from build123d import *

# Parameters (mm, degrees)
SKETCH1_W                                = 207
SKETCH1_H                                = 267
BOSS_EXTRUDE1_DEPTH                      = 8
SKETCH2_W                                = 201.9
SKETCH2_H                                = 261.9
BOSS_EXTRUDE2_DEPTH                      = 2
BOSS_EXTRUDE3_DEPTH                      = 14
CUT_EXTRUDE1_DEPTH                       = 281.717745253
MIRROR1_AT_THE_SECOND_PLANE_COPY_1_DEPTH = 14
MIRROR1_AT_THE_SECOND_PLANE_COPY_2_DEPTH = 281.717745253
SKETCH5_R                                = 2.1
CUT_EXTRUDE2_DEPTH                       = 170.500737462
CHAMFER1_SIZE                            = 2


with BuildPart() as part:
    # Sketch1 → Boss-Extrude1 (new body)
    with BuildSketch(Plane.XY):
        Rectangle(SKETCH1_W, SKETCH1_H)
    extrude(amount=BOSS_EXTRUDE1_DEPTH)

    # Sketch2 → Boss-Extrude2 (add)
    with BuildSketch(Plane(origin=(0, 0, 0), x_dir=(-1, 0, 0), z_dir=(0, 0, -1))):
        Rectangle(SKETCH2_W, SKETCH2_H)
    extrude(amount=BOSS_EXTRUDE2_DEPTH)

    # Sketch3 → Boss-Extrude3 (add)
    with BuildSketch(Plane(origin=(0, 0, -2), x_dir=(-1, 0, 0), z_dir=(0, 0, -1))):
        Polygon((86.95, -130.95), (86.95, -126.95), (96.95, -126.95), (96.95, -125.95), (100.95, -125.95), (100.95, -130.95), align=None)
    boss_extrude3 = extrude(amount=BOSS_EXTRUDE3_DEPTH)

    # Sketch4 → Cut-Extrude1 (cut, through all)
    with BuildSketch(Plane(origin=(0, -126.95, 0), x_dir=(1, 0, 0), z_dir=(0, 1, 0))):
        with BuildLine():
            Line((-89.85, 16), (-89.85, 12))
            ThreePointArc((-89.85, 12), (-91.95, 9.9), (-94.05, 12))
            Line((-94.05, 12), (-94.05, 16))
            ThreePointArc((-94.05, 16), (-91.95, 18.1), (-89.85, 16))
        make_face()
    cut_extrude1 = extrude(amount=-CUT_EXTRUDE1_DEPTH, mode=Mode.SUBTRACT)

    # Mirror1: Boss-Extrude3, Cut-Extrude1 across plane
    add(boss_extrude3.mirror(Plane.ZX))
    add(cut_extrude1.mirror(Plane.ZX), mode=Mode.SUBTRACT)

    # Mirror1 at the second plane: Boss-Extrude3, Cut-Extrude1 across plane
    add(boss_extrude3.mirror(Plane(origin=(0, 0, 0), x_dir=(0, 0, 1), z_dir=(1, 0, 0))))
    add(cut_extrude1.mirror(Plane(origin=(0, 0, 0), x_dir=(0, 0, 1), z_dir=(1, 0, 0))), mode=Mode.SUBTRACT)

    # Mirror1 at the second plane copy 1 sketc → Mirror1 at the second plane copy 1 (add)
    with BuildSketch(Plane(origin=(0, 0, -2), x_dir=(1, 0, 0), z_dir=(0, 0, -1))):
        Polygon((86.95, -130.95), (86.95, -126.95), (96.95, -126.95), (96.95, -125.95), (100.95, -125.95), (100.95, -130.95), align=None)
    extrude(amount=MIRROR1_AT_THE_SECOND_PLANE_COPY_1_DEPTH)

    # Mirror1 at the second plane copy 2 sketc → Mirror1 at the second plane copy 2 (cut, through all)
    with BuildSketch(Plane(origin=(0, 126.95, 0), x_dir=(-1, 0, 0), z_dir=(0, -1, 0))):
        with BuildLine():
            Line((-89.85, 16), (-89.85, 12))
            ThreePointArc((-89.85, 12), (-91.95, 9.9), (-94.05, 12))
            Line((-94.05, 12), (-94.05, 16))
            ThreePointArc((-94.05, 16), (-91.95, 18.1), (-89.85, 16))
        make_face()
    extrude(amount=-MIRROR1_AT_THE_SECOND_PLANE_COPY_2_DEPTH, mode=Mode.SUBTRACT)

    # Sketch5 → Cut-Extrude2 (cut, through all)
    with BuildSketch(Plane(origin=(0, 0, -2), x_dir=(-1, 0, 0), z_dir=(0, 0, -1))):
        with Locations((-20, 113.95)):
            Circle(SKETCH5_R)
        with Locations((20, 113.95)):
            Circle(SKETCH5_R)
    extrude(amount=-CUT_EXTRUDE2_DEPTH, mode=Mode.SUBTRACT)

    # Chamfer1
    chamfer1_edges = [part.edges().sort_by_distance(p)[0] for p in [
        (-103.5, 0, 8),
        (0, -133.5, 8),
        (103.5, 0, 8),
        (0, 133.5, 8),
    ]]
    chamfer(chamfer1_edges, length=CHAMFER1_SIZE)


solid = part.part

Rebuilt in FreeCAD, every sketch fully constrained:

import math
import FreeCAD as App
import Part
import Sketcher
from FreeCAD import Vector
Q = App.Units.Quantity


def edges_at(feature, points):
    """Names of the edges that pass closest to the given points."""
    edges = feature.Shape.Edges
    near = lambda p: min(range(len(edges)), key=lambda i: edges[i].distToShape(Part.Vertex(*p))[0])
    return sorted({f"Edge{near(p) + 1}" for p in points})

doc = App.newDocument("Part")
params = doc.addObject("Spreadsheet::Sheet", "Params")
for row, (alias, value) in enumerate([
    ("sketch1_width", "207 mm"),
    ("sketch1_height", "267 mm"),
    ("pad1_length", "8 mm"),
    ("sketch2_width", "201.9 mm"),
    ("sketch2_height", "261.9 mm"),
    ("pad2_length", "2 mm"),
    ("sketch3_width", "14 mm"),
    ("sketch3_width2", "4 mm"),
    ("sketch3_height", "5 mm"),
    ("pad3_length", "14 mm"),
    ("sketch4_radius", "2.1 mm"),
    ("sketch4_height", "4 mm"),
    ("sketch5_width", "14 mm"),
    ("sketch5_width2", "4 mm"),
    ("sketch5_height", "5 mm"),
    ("pad4_length", "14 mm"),
    ("sketch6_radius", "2.1 mm"),
    ("sketch6_height", "4 mm"),
    ("sketch7_diameter", "4.2 mm"),
    ("chamfer_size", "2 mm"),
], start=1):
    params.set(f"A{row}", alias)
    params.set(f"B{row}", "=" + value)
    params.setAlias(f"B{row}", alias)

body = doc.addObject("PartDesign::Body", "Body")

# Sketch on XY plane
sketch1 = body.newObject("Sketcher::SketchObject", "Sketch")
sketch1.AttachmentSupport = (doc.getObject("XY_Plane"), [""])
sketch1.MapMode = "FlatFace"
sketch1.addGeometry(Part.LineSegment(Vector(-103.5, 133.5, 0), Vector(-103.5, -133.5, 0)), False)
sketch1.addGeometry(Part.LineSegment(Vector(-103.5, -133.5, 0), Vector(103.5, -133.5, 0)), False)
sketch1.addGeometry(Part.LineSegment(Vector(103.5, -133.5, 0), Vector(103.5, 133.5, 0)), False)
sketch1.addGeometry(Part.LineSegment(Vector(103.5, 133.5, 0), Vector(-103.5, 133.5, 0)), False)
sketch1.addConstraint(Sketcher.Constraint("Coincident", 0, 2, 1, 1))
sketch1.addConstraint(Sketcher.Constraint("Coincident", 1, 2, 2, 1))
sketch1.addConstraint(Sketcher.Constraint("Coincident", 2, 2, 3, 1))
sketch1.addConstraint(Sketcher.Constraint("Coincident", 3, 2, 0, 1))
sketch1.addConstraint(Sketcher.Constraint("Vertical", 0))
sketch1.addConstraint(Sketcher.Constraint("Horizontal", 1))
sketch1.addConstraint(Sketcher.Constraint("Vertical", 2))
sketch1.addConstraint(Sketcher.Constraint("Horizontal", 3))
sketch1.addConstraint(Sketcher.Constraint("Symmetric", 0, 2, 2, 2, -1, 1))
sketch1.addConstraint(Sketcher.Constraint("DistanceX", 1, 1, 1, 2, Q("207 mm")))
sketch1.addConstraint(Sketcher.Constraint("DistanceY", 0, 2, 0, 1, Q("267 mm")))
sketch1.setExpression("Constraints[9]", "Params.sketch1_width")
sketch1.setExpression("Constraints[10]", "Params.sketch1_height")
pad1 = body.newObject("PartDesign::Pad", "Pad")
pad1.Profile = sketch1
pad1.setExpression("Length", "Params.pad1_length")

# Sketch on XY plane
sketch2 = body.newObject("Sketcher::SketchObject", "Sketch001")
sketch2.AttachmentSupport = (doc.getObject("XY_Plane"), [""])
sketch2.MapMode = "FlatFace"
sketch2.addGeometry(Part.LineSegment(Vector(100.95, 130.95, 0), Vector(100.95, -130.95, 0)), False)
sketch2.addGeometry(Part.LineSegment(Vector(100.95, -130.95, 0), Vector(-100.95, -130.95, 0)), False)
sketch2.addGeometry(Part.LineSegment(Vector(-100.95, -130.95, 0), Vector(-100.95, 130.95, 0)), False)
sketch2.addGeometry(Part.LineSegment(Vector(-100.95, 130.95, 0), Vector(100.95, 130.95, 0)), False)
sketch2.addConstraint(Sketcher.Constraint("Coincident", 0, 2, 1, 1))
sketch2.addConstraint(Sketcher.Constraint("Coincident", 1, 2, 2, 1))
sketch2.addConstraint(Sketcher.Constraint("Coincident", 2, 2, 3, 1))
sketch2.addConstraint(Sketcher.Constraint("Coincident", 3, 2, 0, 1))
sketch2.addConstraint(Sketcher.Constraint("Vertical", 0))
sketch2.addConstraint(Sketcher.Constraint("Horizontal", 1))
sketch2.addConstraint(Sketcher.Constraint("Vertical", 2))
sketch2.addConstraint(Sketcher.Constraint("Horizontal", 3))
sketch2.addConstraint(Sketcher.Constraint("Symmetric", 0, 2, 2, 2, -1, 1))
sketch2.addConstraint(Sketcher.Constraint("DistanceX", 1, 2, 1, 1, Q("201.9 mm")))
sketch2.addConstraint(Sketcher.Constraint("DistanceY", 0, 2, 0, 1, Q("261.9 mm")))
sketch2.setExpression("Constraints[9]", "Params.sketch2_width")
sketch2.setExpression("Constraints[10]", "Params.sketch2_height")
pad2 = body.newObject("PartDesign::Pad", "Pad001")
pad2.Profile = sketch2
pad2.setExpression("Length", "Params.pad2_length")
pad2.Reversed = True

# Sketch on XY plane
sketch3 = body.newObject("Sketcher::SketchObject", "Sketch002")
sketch3.AttachmentSupport = (doc.getObject("XY_Plane"), [""])
sketch3.MapMode = "FlatFace"
sketch3.AttachmentOffset = App.Placement(Vector(0, 0, -2), App.Rotation())
sketch3.addGeometry(Part.LineSegment(Vector(-86.95, -126.95, 0), Vector(-86.95, -130.95, 0)), False)
sketch3.addGeometry(Part.LineSegment(Vector(-86.95, -130.95, 0), Vector(-100.95, -130.95, 0)), False)
sketch3.addGeometry(Part.LineSegment(Vector(-100.95, -130.95, 0), Vector(-100.95, -125.95, 0)), False)
sketch3.addGeometry(Part.LineSegment(Vector(-100.95, -125.95, 0), Vector(-96.95, -125.95, 0)), False)
sketch3.addGeometry(Part.LineSegment(Vector(-96.95, -125.95, 0), Vector(-96.95, -126.95, 0)), False)
sketch3.addGeometry(Part.LineSegment(Vector(-96.95, -126.95, 0), Vector(-86.95, -126.95, 0)), False)
sketch3.addConstraint(Sketcher.Constraint("Coincident", 0, 2, 1, 1))
sketch3.addConstraint(Sketcher.Constraint("Coincident", 1, 2, 2, 1))
sketch3.addConstraint(Sketcher.Constraint("Coincident", 2, 2, 3, 1))
sketch3.addConstraint(Sketcher.Constraint("Coincident", 3, 2, 4, 1))
sketch3.addConstraint(Sketcher.Constraint("Coincident", 4, 2, 5, 1))
sketch3.addConstraint(Sketcher.Constraint("Coincident", 5, 2, 0, 1))
sketch3.addConstraint(Sketcher.Constraint("Vertical", 0))
sketch3.addConstraint(Sketcher.Constraint("Horizontal", 1))
sketch3.addConstraint(Sketcher.Constraint("Vertical", 2))
sketch3.addConstraint(Sketcher.Constraint("Horizontal", 3))
sketch3.addConstraint(Sketcher.Constraint("Vertical", 4))
sketch3.addConstraint(Sketcher.Constraint("Horizontal", 5))
sketch3.addConstraint(Sketcher.Constraint("Equal", 3, 0))
sketch3.addConstraint(Sketcher.Constraint("DistanceX", 1, 2, 1, 1, Q("14 mm")))
sketch3.addConstraint(Sketcher.Constraint("DistanceX", 3, 1, 3, 2, Q("4 mm")))
sketch3.addConstraint(Sketcher.Constraint("DistanceY", 2, 1, 2, 2, Q("5 mm")))
sketch3.addConstraint(Sketcher.Constraint("DistanceX", 0, 2, -1, 1, Q("86.95 mm")))
sketch3.addConstraint(Sketcher.Constraint("DistanceY", 0, 2, -1, 1, Q("130.95 mm")))
sketch3.setExpression("Constraints[13]", "Params.sketch3_width")
sketch3.setExpression("Constraints[14]", "Params.sketch3_width2")
sketch3.setExpression("Constraints[15]", "Params.sketch3_height")
pad3 = body.newObject("PartDesign::Pad", "Pad002")
pad3.Profile = sketch3
pad3.setExpression("Length", "Params.pad3_length")
pad3.Reversed = True

# Sketch on XZ plane
sketch4 = body.newObject("Sketcher::SketchObject", "Sketch003")
sketch4.AttachmentSupport = (doc.getObject("XZ_Plane"), [""])
sketch4.MapMode = "FlatFace"
sketch4.AttachmentOffset = App.Placement(Vector(0, 0, 126.95), App.Rotation())
sketch4.addGeometry(Part.LineSegment(Vector(-89.85, -12, 0), Vector(-89.85, -16, 0)), False)
sketch4.addGeometry(Part.ArcOfCircle(Part.Circle(Vector(-91.95, -16, 0), Vector(0, 0, 1), 2.1), math.radians(180), math.radians(360)), False)
sketch4.addGeometry(Part.LineSegment(Vector(-94.05, -16, 0), Vector(-94.05, -12, 0)), False)
sketch4.addGeometry(Part.ArcOfCircle(Part.Circle(Vector(-91.95, -12, 0), Vector(0, 0, 1), 2.1), math.radians(0), math.radians(180)), False)
sketch4.addConstraint(Sketcher.Constraint("Tangent", 0, 2, 1, 2))
sketch4.addConstraint(Sketcher.Constraint("Tangent", 1, 1, 2, 1))
sketch4.addConstraint(Sketcher.Constraint("Tangent", 2, 2, 3, 2))
sketch4.addConstraint(Sketcher.Constraint("Tangent", 3, 1, 0, 1))
sketch4.addConstraint(Sketcher.Constraint("Vertical", 0))
sketch4.addConstraint(Sketcher.Constraint("Vertical", 2))
sketch4.addConstraint(Sketcher.Constraint("Radius", 1, Q("2.1 mm")))
sketch4.addConstraint(Sketcher.Constraint("DistanceY", 0, 2, 0, 1, Q("4 mm")))
sketch4.addConstraint(Sketcher.Constraint("DistanceY", 1, 3, -1, 1, Q("16 mm")))
sketch4.addConstraint(Sketcher.Constraint("DistanceX", 1, 3, -1, 1, Q("91.95 mm")))
sketch4.setExpression("Constraints[6]", "Params.sketch4_radius")
sketch4.setExpression("Constraints[7]", "Params.sketch4_height")
pocket1 = body.newObject("PartDesign::Pocket", "Pocket")
pocket1.Profile = sketch4
pocket1.Type = "ThroughAll"
pocket1.Reversed = True
doc.recompute()

mirrored = body.newObject("PartDesign::Mirrored", "Mirrored")
mirrored.Originals = [pad3, pocket1]
mirrored.MirrorPlane = (doc.getObject("XZ_Plane"), [""])
body.Tip = mirrored
doc.recompute()

mirrored2 = body.newObject("PartDesign::Mirrored", "Mirrored001")
mirrored2.Originals = [pad3, pocket1]
mirrored2.MirrorPlane = (doc.getObject("YZ_Plane"), [""])
body.Tip = mirrored2

# Sketch on XY plane
sketch5 = body.newObject("Sketcher::SketchObject", "Sketch004")
sketch5.AttachmentSupport = (doc.getObject("XY_Plane"), [""])
sketch5.MapMode = "FlatFace"
sketch5.AttachmentOffset = App.Placement(Vector(0, 0, -2), App.Rotation())
sketch5.addGeometry(Part.LineSegment(Vector(86.95, 126.95, 0), Vector(86.95, 130.95, 0)), False)
sketch5.addGeometry(Part.LineSegment(Vector(86.95, 130.95, 0), Vector(100.95, 130.95, 0)), False)
sketch5.addGeometry(Part.LineSegment(Vector(100.95, 130.95, 0), Vector(100.95, 125.95, 0)), False)
sketch5.addGeometry(Part.LineSegment(Vector(100.95, 125.95, 0), Vector(96.95, 125.95, 0)), False)
sketch5.addGeometry(Part.LineSegment(Vector(96.95, 125.95, 0), Vector(96.95, 126.95, 0)), False)
sketch5.addGeometry(Part.LineSegment(Vector(96.95, 126.95, 0), Vector(86.95, 126.95, 0)), False)
sketch5.addConstraint(Sketcher.Constraint("Coincident", 0, 2, 1, 1))
sketch5.addConstraint(Sketcher.Constraint("Coincident", 1, 2, 2, 1))
sketch5.addConstraint(Sketcher.Constraint("Coincident", 2, 2, 3, 1))
sketch5.addConstraint(Sketcher.Constraint("Coincident", 3, 2, 4, 1))
sketch5.addConstraint(Sketcher.Constraint("Coincident", 4, 2, 5, 1))
sketch5.addConstraint(Sketcher.Constraint("Coincident", 5, 2, 0, 1))
sketch5.addConstraint(Sketcher.Constraint("Vertical", 0))
sketch5.addConstraint(Sketcher.Constraint("Horizontal", 1))
sketch5.addConstraint(Sketcher.Constraint("Vertical", 2))
sketch5.addConstraint(Sketcher.Constraint("Horizontal", 3))
sketch5.addConstraint(Sketcher.Constraint("Vertical", 4))
sketch5.addConstraint(Sketcher.Constraint("Horizontal", 5))
sketch5.addConstraint(Sketcher.Constraint("Equal", 3, 0))
sketch5.addConstraint(Sketcher.Constraint("DistanceX", 1, 1, 1, 2, Q("14 mm")))
sketch5.addConstraint(Sketcher.Constraint("DistanceX", 3, 2, 3, 1, Q("4 mm")))
sketch5.addConstraint(Sketcher.Constraint("DistanceY", 2, 2, 2, 1, Q("5 mm")))
sketch5.addConstraint(Sketcher.Constraint("DistanceX", -1, 1, 0, 2, Q("86.95 mm")))
sketch5.addConstraint(Sketcher.Constraint("DistanceY", -1, 1, 0, 2, Q("130.95 mm")))
sketch5.setExpression("Constraints[13]", "Params.sketch5_width")
sketch5.setExpression("Constraints[14]", "Params.sketch5_width2")
sketch5.setExpression("Constraints[15]", "Params.sketch5_height")
pad4 = body.newObject("PartDesign::Pad", "Pad003")
pad4.Profile = sketch5
pad4.setExpression("Length", "Params.pad4_length")
pad4.Reversed = True

# Sketch on XZ plane
sketch6 = body.newObject("Sketcher::SketchObject", "Sketch005")
sketch6.AttachmentSupport = (doc.getObject("XZ_Plane"), [""])
sketch6.MapMode = "FlatFace"
sketch6.AttachmentOffset = App.Placement(Vector(0, 0, -126.95), App.Rotation())
sketch6.addGeometry(Part.LineSegment(Vector(89.85, -12, 0), Vector(89.85, -16, 0)), False)
sketch6.addGeometry(Part.ArcOfCircle(Part.Circle(Vector(91.95, -16, 0), Vector(0, 0, 1), 2.1), math.radians(180), math.radians(360)), False)
sketch6.addGeometry(Part.LineSegment(Vector(94.05, -16, 0), Vector(94.05, -12, 0)), False)
sketch6.addGeometry(Part.ArcOfCircle(Part.Circle(Vector(91.95, -12, 0), Vector(0, 0, 1), 2.1), math.radians(0), math.radians(180)), False)
sketch6.addConstraint(Sketcher.Constraint("Tangent", 0, 2, 1, 1))
sketch6.addConstraint(Sketcher.Constraint("Tangent", 1, 2, 2, 1))
sketch6.addConstraint(Sketcher.Constraint("Tangent", 2, 2, 3, 1))
sketch6.addConstraint(Sketcher.Constraint("Tangent", 3, 2, 0, 1))
sketch6.addConstraint(Sketcher.Constraint("Vertical", 0))
sketch6.addConstraint(Sketcher.Constraint("Vertical", 2))
sketch6.addConstraint(Sketcher.Constraint("Radius", 1, Q("2.1 mm")))
sketch6.addConstraint(Sketcher.Constraint("DistanceY", 0, 2, 0, 1, Q("4 mm")))
sketch6.addConstraint(Sketcher.Constraint("DistanceY", 1, 3, -1, 1, Q("16 mm")))
sketch6.addConstraint(Sketcher.Constraint("DistanceX", -1, 1, 1, 3, Q("91.95 mm")))
sketch6.setExpression("Constraints[6]", "Params.sketch6_radius")
sketch6.setExpression("Constraints[7]", "Params.sketch6_height")
pocket2 = body.newObject("PartDesign::Pocket", "Pocket001")
pocket2.Profile = sketch6
pocket2.Type = "ThroughAll"

# Sketch on XY plane
sketch7 = body.newObject("Sketcher::SketchObject", "Sketch006")
sketch7.AttachmentSupport = (doc.getObject("XY_Plane"), [""])
sketch7.MapMode = "FlatFace"
sketch7.AttachmentOffset = App.Placement(Vector(0, 0, -2), App.Rotation())
sketch7.addGeometry(Part.Circle(Vector(20, 113.95, 0), Vector(0, 0, 1), 2.1), False)
sketch7.addGeometry(Part.Circle(Vector(-20, 113.95, 0), Vector(0, 0, 1), 2.1), False)
sketch7.addConstraint(Sketcher.Constraint("Equal", 0, 1))
sketch7.addConstraint(Sketcher.Constraint("Symmetric", 0, 3, 1, 3, -2))
sketch7.addConstraint(Sketcher.Constraint("Diameter", 0, Q("4.2 mm")))
sketch7.addConstraint(Sketcher.Constraint("DistanceX", -1, 1, 0, 3, Q("20 mm")))
sketch7.addConstraint(Sketcher.Constraint("DistanceY", -1, 1, 0, 3, Q("113.95 mm")))
sketch7.setExpression("Constraints[2]", "Params.sketch7_diameter")
pocket3 = body.newObject("PartDesign::Pocket", "Pocket002")
pocket3.Profile = sketch7
pocket3.Type = "ThroughAll"
pocket3.Reversed = True
doc.recompute()

chamfer = body.newObject("PartDesign::Chamfer", "Chamfer")
chamfer.Base = (pocket3, edges_at(pocket3, [
    (-103.5, 0, 8),
    (0, -133.5, 8),
    (103.5, 0, 8),
    (0, 133.5, 8),
]))
chamfer.setExpression("Size", "Params.chamfer_size")

doc.recompute()
